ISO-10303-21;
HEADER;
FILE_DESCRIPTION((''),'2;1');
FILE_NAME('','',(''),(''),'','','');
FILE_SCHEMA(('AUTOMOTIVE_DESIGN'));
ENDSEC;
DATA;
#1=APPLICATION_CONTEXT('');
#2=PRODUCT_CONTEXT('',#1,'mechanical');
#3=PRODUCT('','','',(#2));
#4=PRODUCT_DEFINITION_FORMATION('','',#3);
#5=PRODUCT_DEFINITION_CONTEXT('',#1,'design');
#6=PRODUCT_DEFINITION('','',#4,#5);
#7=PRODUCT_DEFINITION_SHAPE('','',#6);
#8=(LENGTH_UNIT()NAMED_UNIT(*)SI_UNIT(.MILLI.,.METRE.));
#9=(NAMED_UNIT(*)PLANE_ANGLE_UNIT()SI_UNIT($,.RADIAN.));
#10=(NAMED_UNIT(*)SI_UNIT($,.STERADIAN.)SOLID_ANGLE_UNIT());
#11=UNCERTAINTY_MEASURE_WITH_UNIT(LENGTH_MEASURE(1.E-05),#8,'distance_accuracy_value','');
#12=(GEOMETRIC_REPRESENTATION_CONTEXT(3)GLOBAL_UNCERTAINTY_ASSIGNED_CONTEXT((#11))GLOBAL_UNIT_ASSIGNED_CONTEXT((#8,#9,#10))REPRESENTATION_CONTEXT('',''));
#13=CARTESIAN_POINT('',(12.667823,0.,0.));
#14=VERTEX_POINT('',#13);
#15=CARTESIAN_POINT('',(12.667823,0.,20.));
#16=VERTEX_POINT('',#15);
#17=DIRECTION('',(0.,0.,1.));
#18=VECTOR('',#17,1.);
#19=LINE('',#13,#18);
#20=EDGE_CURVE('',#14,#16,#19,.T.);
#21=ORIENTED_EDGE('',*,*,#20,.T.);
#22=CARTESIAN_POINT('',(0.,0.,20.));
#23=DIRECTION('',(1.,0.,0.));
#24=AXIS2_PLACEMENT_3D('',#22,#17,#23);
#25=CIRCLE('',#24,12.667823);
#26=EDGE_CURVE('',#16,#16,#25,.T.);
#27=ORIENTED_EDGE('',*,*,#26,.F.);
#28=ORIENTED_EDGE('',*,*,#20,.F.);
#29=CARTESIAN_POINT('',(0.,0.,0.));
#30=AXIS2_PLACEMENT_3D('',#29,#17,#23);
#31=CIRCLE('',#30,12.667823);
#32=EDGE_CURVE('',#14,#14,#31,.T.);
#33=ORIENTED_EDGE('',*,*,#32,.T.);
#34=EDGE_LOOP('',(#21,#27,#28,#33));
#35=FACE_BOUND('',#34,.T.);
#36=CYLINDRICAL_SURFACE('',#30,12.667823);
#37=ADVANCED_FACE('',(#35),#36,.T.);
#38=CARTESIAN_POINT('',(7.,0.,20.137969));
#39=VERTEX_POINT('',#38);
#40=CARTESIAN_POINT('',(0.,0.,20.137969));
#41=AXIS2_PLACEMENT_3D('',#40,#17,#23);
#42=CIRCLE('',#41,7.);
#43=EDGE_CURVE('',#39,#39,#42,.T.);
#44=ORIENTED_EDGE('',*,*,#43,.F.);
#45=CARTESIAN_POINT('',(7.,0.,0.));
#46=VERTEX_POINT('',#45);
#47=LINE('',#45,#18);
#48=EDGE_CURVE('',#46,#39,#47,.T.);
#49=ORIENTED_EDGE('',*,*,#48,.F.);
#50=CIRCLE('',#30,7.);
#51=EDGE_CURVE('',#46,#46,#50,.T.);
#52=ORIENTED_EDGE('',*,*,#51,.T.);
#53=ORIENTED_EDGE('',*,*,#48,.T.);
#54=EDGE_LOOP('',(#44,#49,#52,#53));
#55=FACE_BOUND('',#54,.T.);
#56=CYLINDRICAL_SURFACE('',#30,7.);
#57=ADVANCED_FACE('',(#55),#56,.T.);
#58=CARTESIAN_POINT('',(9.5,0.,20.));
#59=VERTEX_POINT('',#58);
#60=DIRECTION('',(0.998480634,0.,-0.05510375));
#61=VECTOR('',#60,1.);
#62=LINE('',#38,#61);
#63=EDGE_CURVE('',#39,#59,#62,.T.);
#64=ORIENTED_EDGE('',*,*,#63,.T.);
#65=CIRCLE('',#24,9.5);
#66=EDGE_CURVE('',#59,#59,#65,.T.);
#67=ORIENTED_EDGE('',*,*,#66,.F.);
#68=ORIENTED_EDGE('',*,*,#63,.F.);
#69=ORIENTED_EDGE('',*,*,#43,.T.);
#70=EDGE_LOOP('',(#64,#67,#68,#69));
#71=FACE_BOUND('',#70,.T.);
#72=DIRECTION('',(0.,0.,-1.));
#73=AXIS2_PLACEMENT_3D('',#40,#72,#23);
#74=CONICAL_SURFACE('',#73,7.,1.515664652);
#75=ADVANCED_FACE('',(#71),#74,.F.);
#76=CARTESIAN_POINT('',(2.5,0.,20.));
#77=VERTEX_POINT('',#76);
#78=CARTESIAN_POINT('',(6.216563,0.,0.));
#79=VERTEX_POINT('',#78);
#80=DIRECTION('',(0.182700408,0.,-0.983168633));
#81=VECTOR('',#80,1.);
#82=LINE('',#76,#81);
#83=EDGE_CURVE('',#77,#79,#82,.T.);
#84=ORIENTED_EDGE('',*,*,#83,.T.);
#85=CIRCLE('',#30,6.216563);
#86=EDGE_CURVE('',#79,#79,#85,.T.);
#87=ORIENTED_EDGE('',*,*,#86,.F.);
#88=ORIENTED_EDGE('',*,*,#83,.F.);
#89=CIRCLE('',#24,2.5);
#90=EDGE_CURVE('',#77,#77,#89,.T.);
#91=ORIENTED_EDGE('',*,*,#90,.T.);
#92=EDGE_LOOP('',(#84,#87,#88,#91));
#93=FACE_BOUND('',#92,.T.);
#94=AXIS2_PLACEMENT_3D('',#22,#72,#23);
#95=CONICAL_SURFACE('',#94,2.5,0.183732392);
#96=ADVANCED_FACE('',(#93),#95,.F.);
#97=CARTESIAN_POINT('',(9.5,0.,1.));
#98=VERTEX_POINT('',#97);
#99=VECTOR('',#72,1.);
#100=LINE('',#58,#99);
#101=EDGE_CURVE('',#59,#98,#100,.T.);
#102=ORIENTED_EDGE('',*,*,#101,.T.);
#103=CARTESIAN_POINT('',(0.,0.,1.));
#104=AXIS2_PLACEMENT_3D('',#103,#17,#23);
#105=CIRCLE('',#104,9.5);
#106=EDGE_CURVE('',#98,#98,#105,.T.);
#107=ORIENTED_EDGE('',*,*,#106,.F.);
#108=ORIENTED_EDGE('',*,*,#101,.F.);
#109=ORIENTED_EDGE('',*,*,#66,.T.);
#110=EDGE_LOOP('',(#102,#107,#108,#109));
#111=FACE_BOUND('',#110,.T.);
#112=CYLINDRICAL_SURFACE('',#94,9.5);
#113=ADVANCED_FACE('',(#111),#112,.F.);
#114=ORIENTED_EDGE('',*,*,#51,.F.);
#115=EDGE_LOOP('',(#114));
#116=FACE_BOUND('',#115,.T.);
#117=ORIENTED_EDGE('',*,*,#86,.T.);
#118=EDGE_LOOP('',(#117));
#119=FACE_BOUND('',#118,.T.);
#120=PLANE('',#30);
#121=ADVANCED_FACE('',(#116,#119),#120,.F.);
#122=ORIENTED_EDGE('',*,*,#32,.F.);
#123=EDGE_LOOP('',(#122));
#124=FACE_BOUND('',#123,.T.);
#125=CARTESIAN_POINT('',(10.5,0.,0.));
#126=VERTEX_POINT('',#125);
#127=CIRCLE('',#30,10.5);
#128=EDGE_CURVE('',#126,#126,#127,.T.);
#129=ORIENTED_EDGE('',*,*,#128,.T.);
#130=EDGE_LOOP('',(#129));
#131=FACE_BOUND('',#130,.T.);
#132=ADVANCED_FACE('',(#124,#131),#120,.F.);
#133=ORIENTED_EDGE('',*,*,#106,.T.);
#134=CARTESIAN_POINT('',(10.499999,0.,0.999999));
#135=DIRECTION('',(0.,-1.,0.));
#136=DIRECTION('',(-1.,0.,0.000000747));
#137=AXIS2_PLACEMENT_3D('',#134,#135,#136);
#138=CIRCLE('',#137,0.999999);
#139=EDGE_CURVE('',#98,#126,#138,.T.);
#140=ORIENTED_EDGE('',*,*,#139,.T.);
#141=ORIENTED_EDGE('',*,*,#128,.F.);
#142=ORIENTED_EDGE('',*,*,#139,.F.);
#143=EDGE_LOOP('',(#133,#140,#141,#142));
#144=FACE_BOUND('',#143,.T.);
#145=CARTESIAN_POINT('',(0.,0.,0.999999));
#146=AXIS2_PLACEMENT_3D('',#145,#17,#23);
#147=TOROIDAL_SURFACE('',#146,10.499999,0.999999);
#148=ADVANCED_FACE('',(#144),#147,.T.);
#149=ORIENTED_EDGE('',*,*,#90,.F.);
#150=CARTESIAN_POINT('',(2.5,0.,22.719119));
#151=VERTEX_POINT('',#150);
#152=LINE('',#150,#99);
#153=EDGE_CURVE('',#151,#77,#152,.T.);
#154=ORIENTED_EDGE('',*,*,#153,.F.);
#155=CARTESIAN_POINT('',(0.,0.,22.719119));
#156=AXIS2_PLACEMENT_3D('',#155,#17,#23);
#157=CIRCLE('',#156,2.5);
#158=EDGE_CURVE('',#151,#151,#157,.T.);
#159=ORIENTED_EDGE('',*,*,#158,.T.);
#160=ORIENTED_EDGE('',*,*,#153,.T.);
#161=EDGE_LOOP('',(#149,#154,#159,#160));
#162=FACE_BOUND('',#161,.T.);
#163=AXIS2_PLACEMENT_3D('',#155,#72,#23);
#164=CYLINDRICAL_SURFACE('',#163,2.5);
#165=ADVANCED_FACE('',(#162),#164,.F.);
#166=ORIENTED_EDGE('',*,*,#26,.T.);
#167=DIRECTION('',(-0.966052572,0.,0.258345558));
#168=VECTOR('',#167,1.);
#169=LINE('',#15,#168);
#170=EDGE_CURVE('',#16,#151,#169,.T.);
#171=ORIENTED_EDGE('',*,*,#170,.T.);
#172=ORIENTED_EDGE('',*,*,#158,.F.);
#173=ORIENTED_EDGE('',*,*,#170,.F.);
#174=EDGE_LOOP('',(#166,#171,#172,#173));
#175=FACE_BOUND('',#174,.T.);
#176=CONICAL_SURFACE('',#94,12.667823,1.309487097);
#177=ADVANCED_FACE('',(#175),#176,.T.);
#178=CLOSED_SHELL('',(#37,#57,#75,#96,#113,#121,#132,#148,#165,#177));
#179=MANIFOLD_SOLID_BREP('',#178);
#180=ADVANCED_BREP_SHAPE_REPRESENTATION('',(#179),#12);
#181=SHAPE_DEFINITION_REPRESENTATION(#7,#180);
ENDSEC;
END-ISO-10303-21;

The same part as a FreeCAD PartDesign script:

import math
import FreeCAD as App
import Part
import Sketcher

V = App.Vector
Q = App.Units.Quantity

doc = App.newDocument("Part")
params = doc.addObject("Spreadsheet::Sheet", "Params")
for row, (alias, value) in enumerate([
    ("sketch1_radius", "0.999999 mm"),
    ("sketch1_height", "19 mm"),
    ("revolution_angle", "360 deg"),
], start=1):
    params.set(f"A{row}", alias)
    params.set(f"B{row}", "=" + value)
    params.setAlias(f"B{row}", alias)

body = doc.addObject("PartDesign::Body", "Body")

sketch1 = body.newObject("Sketcher::SketchObject", "Sketch")
sketch1.AttachmentSupport = (doc.getObject("XZ_Plane"), [""])
sketch1.MapMode = "FlatFace"
sketch1.addGeometry([
    Part.LineSegment(V(9.5, 20, 0), V(9.5, 1, 0)),
    Part.ArcOfCircle(Part.Circle(V(10.5, 1, 0), V(0, 0, 1), 1), math.radians(180), math.radians(270)),
    Part.LineSegment(V(10.5, 0, 0), V(12.7, 0, 0)),
    Part.LineSegment(V(12.7, 0, 0), V(12.7, 20, 0)),
    Part.LineSegment(V(12.7, 20, 0), V(2.5, 22.7, 0)),
    Part.LineSegment(V(2.5, 22.7, 0), V(2.5, 20, 0)),
    Part.LineSegment(V(2.5, 20, 0), V(6.2, 0, 0)),
    Part.LineSegment(V(6.2, 0, 0), V(7, 0, 0)),
    Part.LineSegment(V(7, 0, 0), V(7, 20.1, 0)),
    Part.LineSegment(V(7, 20.1, 0), V(9.5, 20, 0)),
], False)
sketch1.addConstraint([
    Sketcher.Constraint("Tangent", 0, 2, 1, 1),
    Sketcher.Constraint("Tangent", 1, 2, 2, 1),
    Sketcher.Constraint("Coincident", 2, 2, 3, 1),
    Sketcher.Constraint("Coincident", 3, 2, 4, 1),
    Sketcher.Constraint("Coincident", 4, 2, 5, 1),
    Sketcher.Constraint("Coincident", 5, 2, 6, 1),
    Sketcher.Constraint("Coincident", 6, 2, 7, 1),
    Sketcher.Constraint("Coincident", 7, 2, 8, 1),
    Sketcher.Constraint("Coincident", 8, 2, 9, 1),
    Sketcher.Constraint("Coincident", 9, 2, 0, 1),
    Sketcher.Constraint("Vertical", 0),
    Sketcher.Constraint("Horizontal", 2),
    Sketcher.Constraint("Vertical", 3),
    Sketcher.Constraint("Vertical", 5),
    Sketcher.Constraint("Horizontal", 7),
    Sketcher.Constraint("Vertical", 8),
    Sketcher.Constraint("PointOnObject", 1, 2, -1),
    Sketcher.Constraint("PointOnObject", 6, 2, -1),
    Sketcher.Constraint("Horizontal", 3, 2, 5, 2),
    Sketcher.Constraint("Horizontal", 5, 2, 9, 2),
    Sketcher.Constraint("Radius", 1, Q("0.999999 mm")),
    Sketcher.Constraint("DistanceY", 0, 2, 0, 1, Q("19 mm")),
    Sketcher.Constraint("DistanceX", -1, 1, 7, 2, Q("7 mm")),
    Sketcher.Constraint("DistanceX", 4, 2, 0, 2, Q("7 mm")),
    Sketcher.Constraint("DistanceX", -1, 1, 1, 3, Q("10.499999 mm")),
    Sketcher.Constraint("DistanceY", 5, 2, 5, 1, Q("2.719119 mm")),
    Sketcher.Constraint("DistanceY", 8, 1, 8, 2, Q("20.137969 mm")),
    Sketcher.Constraint("Distance", 6, Q("20.34239 mm")),
    Sketcher.Constraint("DistanceX", 2, 1, 2, 2, Q("2.167823 mm")),
])
sketch1.setExpression("Constraints[20]", "Params.sketch1_radius")
sketch1.setExpression("Constraints[21]", "Params.sketch1_height")
revolution = body.newObject("PartDesign::Revolution", "Revolution")
revolution.Profile = sketch1
revolution.ReferenceAxis = (sketch1, ["V_Axis"])
revolution.setExpression("Angle", "Params.revolution_angle")

doc.recompute()
